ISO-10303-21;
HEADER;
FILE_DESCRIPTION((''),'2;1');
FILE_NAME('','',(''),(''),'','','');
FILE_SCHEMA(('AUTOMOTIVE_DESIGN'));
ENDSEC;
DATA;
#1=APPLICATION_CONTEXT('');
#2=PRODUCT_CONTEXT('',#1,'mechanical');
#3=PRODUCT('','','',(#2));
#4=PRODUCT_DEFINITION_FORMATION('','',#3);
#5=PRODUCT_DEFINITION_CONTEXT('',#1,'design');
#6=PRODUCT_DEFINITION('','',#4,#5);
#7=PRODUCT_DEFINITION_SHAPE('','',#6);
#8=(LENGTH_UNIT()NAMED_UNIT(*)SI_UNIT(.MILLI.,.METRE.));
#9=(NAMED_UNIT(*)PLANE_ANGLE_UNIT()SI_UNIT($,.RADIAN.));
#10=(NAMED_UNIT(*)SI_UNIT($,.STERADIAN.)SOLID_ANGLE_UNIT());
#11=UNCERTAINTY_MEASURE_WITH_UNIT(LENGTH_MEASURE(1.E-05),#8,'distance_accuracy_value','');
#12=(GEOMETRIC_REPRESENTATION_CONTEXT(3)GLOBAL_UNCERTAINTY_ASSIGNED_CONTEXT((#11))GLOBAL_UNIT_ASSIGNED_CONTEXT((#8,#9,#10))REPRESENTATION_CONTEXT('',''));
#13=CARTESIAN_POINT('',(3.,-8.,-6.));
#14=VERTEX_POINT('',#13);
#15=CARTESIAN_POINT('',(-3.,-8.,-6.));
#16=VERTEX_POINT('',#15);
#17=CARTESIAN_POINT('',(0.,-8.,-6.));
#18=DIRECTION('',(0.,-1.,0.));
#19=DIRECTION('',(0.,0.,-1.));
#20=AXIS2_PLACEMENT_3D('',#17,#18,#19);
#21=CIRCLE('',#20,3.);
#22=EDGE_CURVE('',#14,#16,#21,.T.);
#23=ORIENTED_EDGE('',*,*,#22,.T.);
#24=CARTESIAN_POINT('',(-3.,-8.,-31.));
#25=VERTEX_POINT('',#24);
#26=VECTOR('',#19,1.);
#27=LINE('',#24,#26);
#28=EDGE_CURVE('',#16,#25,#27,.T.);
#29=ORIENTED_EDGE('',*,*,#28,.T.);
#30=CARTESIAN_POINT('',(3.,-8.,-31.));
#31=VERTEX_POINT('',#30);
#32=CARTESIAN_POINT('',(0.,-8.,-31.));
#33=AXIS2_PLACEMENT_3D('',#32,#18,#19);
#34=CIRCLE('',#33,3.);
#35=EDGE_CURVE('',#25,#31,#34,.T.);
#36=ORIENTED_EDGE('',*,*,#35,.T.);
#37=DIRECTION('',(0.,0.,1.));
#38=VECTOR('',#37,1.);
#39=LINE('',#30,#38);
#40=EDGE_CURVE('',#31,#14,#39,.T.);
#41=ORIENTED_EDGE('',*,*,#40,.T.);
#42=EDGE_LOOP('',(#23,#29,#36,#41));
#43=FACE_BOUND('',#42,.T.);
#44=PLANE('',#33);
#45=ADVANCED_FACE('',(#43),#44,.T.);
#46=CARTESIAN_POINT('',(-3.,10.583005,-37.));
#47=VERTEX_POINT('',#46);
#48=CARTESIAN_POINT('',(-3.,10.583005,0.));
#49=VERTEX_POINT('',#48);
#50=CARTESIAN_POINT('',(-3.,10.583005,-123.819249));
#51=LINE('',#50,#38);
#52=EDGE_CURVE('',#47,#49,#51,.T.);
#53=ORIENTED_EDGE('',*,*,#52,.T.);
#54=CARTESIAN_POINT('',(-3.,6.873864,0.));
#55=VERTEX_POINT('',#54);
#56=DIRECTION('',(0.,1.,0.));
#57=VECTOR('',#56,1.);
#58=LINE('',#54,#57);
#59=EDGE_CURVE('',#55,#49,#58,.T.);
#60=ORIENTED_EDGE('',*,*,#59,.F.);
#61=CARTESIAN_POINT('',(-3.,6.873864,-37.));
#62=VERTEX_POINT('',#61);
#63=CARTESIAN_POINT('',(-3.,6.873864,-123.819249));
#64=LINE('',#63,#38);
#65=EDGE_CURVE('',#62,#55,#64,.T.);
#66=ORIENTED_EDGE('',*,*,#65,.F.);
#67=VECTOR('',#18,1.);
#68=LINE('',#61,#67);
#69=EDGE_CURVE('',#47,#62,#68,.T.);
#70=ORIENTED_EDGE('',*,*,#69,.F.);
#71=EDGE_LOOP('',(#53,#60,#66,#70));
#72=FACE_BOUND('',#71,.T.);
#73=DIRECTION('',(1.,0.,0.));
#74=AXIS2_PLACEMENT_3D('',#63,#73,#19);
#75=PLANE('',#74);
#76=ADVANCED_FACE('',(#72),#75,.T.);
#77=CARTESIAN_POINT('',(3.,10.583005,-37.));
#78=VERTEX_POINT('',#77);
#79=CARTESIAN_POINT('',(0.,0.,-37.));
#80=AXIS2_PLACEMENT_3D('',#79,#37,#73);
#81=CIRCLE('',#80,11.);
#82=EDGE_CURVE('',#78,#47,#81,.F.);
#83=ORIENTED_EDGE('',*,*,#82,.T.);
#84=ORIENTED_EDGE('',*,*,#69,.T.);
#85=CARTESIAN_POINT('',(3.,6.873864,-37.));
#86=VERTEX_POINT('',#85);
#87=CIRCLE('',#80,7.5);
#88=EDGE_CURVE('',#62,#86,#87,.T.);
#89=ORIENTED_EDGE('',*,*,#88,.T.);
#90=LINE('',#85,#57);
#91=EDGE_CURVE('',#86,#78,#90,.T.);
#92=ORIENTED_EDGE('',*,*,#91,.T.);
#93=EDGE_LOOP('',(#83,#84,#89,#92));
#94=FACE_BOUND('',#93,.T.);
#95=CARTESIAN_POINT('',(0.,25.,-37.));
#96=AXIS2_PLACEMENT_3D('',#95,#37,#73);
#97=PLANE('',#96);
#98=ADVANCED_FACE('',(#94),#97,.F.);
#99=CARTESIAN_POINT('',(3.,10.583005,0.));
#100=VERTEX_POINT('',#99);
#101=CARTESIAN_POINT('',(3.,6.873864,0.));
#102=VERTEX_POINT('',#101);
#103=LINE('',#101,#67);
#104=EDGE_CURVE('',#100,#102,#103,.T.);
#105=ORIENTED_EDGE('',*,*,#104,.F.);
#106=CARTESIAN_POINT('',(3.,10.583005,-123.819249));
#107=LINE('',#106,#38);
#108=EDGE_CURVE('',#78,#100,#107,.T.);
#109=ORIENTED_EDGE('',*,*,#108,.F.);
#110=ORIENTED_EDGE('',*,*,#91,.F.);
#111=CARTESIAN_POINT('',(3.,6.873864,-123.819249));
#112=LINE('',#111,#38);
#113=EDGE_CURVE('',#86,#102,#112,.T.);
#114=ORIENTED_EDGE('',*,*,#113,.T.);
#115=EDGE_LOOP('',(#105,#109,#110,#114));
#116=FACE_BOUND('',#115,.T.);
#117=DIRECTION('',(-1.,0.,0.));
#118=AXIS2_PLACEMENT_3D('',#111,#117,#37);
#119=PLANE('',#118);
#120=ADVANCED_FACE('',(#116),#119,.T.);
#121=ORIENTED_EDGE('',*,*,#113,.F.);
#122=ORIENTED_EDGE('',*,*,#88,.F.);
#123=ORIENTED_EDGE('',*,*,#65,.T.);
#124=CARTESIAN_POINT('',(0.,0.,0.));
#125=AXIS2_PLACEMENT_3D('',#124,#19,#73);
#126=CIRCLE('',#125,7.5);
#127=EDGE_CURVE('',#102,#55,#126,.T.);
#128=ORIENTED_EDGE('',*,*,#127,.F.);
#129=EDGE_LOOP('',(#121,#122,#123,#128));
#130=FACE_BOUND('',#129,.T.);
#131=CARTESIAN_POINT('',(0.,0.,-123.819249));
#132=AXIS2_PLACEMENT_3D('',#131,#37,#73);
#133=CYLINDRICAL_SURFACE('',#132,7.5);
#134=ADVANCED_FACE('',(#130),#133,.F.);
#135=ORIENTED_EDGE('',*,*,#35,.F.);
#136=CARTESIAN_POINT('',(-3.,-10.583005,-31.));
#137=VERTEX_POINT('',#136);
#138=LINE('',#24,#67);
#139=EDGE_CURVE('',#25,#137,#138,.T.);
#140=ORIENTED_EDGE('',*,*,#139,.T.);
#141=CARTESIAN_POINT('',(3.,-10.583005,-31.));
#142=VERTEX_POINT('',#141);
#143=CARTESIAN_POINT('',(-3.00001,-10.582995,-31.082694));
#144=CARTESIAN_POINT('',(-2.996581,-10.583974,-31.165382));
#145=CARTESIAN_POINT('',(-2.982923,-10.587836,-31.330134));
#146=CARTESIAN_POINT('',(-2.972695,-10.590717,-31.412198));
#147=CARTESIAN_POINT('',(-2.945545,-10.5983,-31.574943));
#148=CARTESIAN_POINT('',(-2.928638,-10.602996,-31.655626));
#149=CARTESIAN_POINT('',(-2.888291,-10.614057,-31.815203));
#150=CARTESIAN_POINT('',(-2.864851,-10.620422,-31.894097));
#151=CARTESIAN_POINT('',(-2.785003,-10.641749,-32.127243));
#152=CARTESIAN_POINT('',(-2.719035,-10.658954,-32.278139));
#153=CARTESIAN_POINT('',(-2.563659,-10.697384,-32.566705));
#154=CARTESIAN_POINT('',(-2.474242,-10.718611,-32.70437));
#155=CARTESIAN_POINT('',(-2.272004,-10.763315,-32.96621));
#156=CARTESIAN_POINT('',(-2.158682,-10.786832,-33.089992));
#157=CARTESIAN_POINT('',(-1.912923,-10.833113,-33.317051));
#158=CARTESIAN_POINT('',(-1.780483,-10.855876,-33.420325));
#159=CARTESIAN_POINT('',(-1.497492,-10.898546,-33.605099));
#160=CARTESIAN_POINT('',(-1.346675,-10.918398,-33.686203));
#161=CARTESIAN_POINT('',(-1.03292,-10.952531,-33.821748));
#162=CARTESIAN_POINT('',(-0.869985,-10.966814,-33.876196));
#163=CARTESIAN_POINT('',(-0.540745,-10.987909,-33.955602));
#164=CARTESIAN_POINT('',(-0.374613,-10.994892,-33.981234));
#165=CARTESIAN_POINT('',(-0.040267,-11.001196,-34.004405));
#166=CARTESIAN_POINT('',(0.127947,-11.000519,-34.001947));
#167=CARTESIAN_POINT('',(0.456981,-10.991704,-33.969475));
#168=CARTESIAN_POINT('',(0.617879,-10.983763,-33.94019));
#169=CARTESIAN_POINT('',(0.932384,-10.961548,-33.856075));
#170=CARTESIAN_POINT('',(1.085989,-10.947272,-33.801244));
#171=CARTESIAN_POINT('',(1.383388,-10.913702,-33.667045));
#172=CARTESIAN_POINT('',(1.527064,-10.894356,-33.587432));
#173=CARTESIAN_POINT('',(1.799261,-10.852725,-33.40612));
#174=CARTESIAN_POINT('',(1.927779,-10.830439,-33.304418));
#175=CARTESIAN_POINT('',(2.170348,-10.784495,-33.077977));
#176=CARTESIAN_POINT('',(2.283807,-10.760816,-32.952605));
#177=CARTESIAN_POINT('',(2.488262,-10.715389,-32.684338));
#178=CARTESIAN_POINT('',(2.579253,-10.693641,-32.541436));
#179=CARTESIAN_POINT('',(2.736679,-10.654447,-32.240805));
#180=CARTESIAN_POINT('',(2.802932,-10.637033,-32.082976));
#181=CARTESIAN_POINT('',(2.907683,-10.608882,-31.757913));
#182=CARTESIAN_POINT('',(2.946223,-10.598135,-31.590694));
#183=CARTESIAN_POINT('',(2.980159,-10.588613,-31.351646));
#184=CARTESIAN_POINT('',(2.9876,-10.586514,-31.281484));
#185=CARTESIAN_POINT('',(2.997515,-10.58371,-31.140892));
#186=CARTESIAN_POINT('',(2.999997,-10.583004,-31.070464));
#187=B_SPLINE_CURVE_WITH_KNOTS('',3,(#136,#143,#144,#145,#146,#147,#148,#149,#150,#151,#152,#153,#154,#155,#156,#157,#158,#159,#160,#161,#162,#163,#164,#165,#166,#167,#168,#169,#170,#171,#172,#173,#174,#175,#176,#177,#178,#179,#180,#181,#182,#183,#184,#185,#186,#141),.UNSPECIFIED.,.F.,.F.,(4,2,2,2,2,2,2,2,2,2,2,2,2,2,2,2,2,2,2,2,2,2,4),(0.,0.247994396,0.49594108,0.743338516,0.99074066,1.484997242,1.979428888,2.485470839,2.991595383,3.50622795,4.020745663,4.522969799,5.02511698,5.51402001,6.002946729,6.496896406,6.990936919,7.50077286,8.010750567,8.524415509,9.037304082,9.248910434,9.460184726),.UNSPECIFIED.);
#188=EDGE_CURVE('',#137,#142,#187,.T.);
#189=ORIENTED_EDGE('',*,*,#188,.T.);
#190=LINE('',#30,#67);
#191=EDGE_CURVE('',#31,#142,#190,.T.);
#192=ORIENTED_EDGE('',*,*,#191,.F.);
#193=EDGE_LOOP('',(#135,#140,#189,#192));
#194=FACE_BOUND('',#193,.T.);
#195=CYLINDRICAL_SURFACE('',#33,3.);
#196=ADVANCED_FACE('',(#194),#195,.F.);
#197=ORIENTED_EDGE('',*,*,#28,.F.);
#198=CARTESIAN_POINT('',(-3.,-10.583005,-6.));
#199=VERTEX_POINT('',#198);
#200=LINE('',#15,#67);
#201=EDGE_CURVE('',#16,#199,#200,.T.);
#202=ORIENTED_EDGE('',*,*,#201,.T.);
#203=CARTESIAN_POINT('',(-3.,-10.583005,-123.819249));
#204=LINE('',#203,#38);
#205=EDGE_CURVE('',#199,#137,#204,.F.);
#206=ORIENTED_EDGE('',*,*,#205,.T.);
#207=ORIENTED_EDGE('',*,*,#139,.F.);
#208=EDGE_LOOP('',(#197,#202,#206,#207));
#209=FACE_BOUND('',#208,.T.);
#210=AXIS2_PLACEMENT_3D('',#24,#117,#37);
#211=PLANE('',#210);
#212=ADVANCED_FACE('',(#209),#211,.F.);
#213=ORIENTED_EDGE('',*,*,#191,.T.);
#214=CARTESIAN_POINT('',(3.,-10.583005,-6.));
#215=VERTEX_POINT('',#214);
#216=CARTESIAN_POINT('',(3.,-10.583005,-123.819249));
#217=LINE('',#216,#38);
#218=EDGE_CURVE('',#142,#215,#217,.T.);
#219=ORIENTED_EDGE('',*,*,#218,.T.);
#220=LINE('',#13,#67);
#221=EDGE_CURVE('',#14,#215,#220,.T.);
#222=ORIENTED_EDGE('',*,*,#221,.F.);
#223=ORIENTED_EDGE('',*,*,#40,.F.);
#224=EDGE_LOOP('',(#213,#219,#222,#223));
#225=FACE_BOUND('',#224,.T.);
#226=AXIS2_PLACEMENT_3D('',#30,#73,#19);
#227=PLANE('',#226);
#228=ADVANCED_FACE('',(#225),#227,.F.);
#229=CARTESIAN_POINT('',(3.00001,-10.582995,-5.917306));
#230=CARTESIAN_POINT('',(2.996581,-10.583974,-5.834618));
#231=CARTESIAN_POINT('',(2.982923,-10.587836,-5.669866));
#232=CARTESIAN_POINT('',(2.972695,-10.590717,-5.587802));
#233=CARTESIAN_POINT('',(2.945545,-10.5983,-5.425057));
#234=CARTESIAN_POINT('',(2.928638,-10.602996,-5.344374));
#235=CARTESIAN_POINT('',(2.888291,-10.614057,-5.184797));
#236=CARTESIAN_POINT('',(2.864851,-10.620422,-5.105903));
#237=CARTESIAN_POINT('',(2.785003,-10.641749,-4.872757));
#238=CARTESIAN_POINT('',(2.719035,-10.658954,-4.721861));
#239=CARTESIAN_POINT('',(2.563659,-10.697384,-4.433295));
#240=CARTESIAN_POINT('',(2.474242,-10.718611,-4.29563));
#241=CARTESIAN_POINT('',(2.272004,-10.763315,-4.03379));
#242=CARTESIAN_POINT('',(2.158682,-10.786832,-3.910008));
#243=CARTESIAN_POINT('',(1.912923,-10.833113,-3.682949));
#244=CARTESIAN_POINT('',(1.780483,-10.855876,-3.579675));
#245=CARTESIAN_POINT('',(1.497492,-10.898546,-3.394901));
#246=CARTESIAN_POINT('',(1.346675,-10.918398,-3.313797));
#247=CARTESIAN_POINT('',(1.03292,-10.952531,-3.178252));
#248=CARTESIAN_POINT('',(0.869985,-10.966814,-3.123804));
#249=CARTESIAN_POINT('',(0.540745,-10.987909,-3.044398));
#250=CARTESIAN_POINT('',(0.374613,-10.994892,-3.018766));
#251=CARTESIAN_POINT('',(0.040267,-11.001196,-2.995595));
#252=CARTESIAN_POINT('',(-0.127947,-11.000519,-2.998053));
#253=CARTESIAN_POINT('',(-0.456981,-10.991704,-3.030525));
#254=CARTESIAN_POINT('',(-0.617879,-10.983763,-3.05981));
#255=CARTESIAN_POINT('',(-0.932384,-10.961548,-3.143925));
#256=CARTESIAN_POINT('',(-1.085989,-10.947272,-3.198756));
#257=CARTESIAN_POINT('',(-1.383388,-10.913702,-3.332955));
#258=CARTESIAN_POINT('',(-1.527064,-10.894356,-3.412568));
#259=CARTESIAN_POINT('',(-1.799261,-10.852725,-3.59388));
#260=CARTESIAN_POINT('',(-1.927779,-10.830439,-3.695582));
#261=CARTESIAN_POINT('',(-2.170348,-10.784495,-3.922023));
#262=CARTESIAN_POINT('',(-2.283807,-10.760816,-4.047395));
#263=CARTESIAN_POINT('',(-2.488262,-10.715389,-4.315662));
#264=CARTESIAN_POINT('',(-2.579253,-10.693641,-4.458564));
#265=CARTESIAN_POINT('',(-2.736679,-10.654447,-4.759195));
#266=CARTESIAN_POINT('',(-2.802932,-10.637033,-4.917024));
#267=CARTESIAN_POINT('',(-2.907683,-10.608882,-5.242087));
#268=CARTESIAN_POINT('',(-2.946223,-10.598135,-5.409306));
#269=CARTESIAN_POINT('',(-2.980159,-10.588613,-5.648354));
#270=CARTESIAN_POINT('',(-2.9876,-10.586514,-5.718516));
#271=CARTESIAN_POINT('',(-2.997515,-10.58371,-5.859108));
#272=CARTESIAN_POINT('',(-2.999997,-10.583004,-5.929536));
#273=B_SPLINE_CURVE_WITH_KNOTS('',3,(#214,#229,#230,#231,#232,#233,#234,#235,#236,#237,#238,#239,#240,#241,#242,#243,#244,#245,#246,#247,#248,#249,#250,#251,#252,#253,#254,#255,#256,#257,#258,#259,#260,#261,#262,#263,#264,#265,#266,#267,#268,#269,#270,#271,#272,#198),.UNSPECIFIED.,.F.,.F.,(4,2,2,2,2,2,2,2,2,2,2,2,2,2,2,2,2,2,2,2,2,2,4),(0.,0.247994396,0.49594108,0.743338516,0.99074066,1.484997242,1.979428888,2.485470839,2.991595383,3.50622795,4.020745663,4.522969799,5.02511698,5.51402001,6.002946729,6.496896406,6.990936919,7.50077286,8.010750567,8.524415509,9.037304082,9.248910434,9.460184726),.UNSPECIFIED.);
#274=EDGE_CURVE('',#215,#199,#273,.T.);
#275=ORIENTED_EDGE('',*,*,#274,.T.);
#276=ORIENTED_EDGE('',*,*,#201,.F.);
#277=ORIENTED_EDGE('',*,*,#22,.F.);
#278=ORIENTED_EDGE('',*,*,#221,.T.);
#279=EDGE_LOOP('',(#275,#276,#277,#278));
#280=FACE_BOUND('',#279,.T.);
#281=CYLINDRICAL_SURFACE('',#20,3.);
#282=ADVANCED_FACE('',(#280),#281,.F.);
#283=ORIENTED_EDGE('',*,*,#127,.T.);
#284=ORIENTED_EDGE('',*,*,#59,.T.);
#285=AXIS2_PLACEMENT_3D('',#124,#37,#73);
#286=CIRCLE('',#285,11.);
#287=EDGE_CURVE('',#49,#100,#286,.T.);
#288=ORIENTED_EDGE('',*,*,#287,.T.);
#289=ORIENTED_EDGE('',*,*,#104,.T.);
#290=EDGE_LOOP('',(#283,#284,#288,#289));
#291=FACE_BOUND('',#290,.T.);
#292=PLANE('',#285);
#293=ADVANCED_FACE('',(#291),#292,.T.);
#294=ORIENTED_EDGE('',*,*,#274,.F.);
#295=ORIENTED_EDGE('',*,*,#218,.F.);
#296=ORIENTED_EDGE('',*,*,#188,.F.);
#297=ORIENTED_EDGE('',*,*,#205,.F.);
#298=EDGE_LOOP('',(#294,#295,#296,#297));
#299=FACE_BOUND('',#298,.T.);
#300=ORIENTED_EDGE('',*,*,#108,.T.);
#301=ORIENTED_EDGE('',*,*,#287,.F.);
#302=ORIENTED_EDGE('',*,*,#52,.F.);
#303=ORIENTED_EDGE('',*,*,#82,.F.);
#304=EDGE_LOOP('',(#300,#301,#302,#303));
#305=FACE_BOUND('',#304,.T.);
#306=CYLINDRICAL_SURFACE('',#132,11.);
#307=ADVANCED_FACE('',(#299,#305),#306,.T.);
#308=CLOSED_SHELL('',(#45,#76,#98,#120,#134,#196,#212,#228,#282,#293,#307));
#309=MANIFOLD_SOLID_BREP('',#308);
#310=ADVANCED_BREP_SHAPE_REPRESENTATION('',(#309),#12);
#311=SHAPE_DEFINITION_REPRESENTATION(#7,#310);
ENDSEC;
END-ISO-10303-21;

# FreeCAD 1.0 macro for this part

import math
import FreeCAD as App
import Part
import Sketcher

V = App.Vector

doc = App.newDocument("Part")
body = doc.addObject("PartDesign::Body", "Body")

# Sketch on XY plane
sketch1 = body.newObject("Sketcher::SketchObject", "Sketch")
sketch1.AttachmentSupport = (doc.getObject("XY_Plane"), [""])
sketch1.MapMode = "FlatFace"
sketch1.addGeometry([
    Part.LineSegment(V(-3, 6.9, 0), V(-3, 10.6, 0)),
    Part.ArcOfCircle(Part.Circle(V(0, 0, 0), V(0, 0, 1), 11), math.radians(106), math.radians(434)),
    Part.LineSegment(V(3, 10.6, 0), V(3, 6.9, 0)),
    Part.ArcOfCircle(Part.Circle(V(0, 0, 0), V(0, 0, 1), 7.5), math.radians(114), math.radians(426)),
], False)
sketch1.addConstraint([
    Sketcher.Constraint("Coincident", 0, 2, 1, 1),
    Sketcher.Constraint("Coincident", 1, 2, 2, 1),
    Sketcher.Constraint("Coincident", 2, 2, 3, 2),
    Sketcher.Constraint("Coincident", 3, 1, 0, 1),
    Sketcher.Constraint("Vertical", 0),
    Sketcher.Constraint("Vertical", 2),
    Sketcher.Constraint("Coincident", 1, 3, -1, 1),
    Sketcher.Constraint("Coincident", 3, 3, -1, 1),
    Sketcher.Constraint("Horizontal", 0, 2, 1, 2),
    Sketcher.Constraint("Radius", 1, 11.0),
    Sketcher.Constraint("Radius", 3, 7.5),
    Sketcher.Constraint("DistanceX", 0, 2, -1, 1, 3.0),
])
pad1 = body.newObject("PartDesign::Pad", "Pad")
pad1.Profile = sketch1
pad1.Length = 37
pad1.Reversed = True

# Sketch on XZ plane
sketch2 = body.newObject("Sketcher::SketchObject", "Sketch001")
sketch2.AttachmentSupport = (doc.getObject("XZ_Plane"), [""])
sketch2.MapMode = "FlatFace"
sketch2.AttachmentOffset = App.Placement(V(0, 0, 11), App.Rotation())
sketch2.addGeometry([
    Part.LineSegment(V(-3, -6, 0), V(-3, -31, 0)),
    Part.ArcOfCircle(Part.Circle(V(0, -31, 0), V(0, 0, 1), 3), math.radians(180), math.radians(360)),
    Part.LineSegment(V(3, -31, 0), V(3, -6, 0)),
    Part.ArcOfCircle(Part.Circle(V(0, -6, 0), V(0, 0, 1), 3), math.radians(0), math.radians(180)),
], False)
sketch2.addConstraint([
    Sketcher.Constraint("Tangent", 0, 2, 1, 1),
    Sketcher.Constraint("Tangent", 1, 2, 2, 1),
    Sketcher.Constraint("Tangent", 2, 2, 3, 1),
    Sketcher.Constraint("Tangent", 3, 2, 0, 1),
    Sketcher.Constraint("Vertical", 0),
    Sketcher.Constraint("Vertical", 2),
    Sketcher.Constraint("PointOnObject", 1, 3, -2),
    Sketcher.Constraint("Radius", 1, 3.0),
    Sketcher.Constraint("DistanceY", 0, 2, 0, 1, 25.0),
    Sketcher.Constraint("DistanceY", 1, 3, -1, 1, 31.0),
])
pocket1 = body.newObject("PartDesign::Pocket", "Pocket")
pocket1.Profile = sketch2
pocket1.Length = 3

doc.recompute()
